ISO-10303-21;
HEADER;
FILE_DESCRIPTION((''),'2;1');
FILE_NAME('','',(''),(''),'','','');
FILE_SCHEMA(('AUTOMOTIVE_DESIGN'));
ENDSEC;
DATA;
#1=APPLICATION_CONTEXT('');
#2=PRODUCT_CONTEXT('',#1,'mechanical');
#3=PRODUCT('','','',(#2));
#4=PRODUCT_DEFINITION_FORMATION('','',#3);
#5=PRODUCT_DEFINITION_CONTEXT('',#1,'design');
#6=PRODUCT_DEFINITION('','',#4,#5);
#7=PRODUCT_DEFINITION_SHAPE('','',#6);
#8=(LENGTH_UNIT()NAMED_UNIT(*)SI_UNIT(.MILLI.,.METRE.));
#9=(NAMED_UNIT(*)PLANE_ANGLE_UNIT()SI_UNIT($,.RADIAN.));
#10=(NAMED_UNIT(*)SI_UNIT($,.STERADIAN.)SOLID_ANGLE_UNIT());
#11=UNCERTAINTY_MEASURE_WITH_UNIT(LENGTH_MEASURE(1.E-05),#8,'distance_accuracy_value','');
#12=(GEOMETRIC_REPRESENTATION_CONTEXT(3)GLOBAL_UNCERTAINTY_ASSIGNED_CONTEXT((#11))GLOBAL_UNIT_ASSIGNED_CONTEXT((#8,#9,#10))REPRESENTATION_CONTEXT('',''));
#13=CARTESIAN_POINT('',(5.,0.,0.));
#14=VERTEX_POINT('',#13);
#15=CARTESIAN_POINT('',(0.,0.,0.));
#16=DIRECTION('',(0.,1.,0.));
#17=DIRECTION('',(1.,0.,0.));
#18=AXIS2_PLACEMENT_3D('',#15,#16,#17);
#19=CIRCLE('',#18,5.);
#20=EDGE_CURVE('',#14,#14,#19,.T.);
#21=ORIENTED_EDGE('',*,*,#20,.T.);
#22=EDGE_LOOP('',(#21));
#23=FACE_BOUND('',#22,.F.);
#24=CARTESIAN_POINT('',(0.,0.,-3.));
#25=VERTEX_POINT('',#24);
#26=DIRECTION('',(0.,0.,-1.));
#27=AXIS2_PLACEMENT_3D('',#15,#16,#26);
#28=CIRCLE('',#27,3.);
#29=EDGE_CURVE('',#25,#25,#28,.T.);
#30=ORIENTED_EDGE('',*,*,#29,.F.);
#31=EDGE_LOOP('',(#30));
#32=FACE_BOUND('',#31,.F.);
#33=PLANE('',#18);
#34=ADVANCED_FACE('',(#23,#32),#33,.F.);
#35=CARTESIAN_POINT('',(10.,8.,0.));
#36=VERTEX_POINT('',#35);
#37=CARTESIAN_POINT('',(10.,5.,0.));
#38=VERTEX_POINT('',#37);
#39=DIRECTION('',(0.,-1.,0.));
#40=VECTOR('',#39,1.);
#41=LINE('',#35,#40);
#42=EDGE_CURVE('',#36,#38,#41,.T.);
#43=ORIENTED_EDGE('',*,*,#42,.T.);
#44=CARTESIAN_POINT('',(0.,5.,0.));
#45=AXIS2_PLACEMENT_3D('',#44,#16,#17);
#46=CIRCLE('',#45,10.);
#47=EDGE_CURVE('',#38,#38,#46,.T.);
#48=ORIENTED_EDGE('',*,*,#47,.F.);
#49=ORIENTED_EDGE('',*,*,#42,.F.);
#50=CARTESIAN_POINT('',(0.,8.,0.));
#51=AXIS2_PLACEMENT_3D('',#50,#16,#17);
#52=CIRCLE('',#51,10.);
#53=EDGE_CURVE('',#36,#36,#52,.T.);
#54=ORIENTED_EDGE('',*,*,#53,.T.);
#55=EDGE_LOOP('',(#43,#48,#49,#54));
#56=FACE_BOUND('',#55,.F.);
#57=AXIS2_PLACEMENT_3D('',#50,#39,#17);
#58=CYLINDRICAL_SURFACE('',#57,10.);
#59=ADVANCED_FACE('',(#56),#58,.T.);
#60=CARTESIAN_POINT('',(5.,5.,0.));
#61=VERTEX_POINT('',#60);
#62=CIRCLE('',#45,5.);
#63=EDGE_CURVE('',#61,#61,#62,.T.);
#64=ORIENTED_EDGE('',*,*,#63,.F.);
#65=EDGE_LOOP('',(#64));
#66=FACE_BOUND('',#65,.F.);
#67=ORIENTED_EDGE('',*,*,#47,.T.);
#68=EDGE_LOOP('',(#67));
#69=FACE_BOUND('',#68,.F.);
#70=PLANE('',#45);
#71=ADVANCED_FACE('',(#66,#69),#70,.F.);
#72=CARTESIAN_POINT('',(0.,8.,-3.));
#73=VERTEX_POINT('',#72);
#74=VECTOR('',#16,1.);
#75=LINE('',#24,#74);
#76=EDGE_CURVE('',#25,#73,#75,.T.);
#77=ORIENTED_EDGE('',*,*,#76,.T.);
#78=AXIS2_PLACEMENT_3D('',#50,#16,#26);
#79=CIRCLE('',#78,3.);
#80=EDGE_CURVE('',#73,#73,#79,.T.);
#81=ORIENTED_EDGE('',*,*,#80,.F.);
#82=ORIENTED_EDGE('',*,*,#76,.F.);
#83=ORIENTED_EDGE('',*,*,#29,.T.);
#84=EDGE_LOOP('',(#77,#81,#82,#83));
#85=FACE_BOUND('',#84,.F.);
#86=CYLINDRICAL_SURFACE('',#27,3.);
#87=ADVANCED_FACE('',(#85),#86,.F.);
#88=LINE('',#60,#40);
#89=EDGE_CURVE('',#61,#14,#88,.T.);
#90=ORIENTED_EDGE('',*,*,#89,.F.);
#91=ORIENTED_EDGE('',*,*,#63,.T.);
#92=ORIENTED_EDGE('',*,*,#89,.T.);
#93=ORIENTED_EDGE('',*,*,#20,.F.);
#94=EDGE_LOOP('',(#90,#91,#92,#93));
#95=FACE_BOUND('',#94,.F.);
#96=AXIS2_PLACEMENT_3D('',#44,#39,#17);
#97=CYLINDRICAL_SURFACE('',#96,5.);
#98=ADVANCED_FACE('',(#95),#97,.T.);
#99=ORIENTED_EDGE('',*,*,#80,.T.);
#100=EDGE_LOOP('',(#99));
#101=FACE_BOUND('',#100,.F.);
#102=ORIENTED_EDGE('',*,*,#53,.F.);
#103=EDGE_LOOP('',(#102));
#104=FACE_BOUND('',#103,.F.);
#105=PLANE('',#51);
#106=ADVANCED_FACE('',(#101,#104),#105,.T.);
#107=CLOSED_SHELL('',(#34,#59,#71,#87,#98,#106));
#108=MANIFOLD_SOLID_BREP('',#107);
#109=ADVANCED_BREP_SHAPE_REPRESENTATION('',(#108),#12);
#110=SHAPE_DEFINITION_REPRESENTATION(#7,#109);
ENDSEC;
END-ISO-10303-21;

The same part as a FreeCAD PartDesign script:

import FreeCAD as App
import Part
import Sketcher
Q = App.Units.Quantity


def add_polygon(sketch, points):
    """Adds a closed chain of lines whose ends are joined by coincident constraints."""
    first, n = sketch.GeometryCount, len(points)
    for a, b in zip(points, points[1:] + points[:1]):
        sketch.addGeometry(Part.LineSegment(App.Vector(*a, 0), App.Vector(*b, 0)), False)
    for i in range(n):
        sketch.addConstraint(Sketcher.Constraint("Coincident", first + i, 2, first + (i + 1) % n, 1))

doc = App.newDocument("Part")
body = doc.addObject("PartDesign::Body", "Body")

# Sketch on XY plane
sketch1 = doc.addObject("Sketcher::SketchObject", "Sketch")
body.addObject(sketch1)
sketch1.AttachmentSupport = (doc.XY_Plane, [""])
sketch1.MapMode = "FlatFace"
add_polygon(sketch1, [(0, 8), (0, 0), (5, 0), (5, 5), (10, 5), (10, 8)])  # lines 0-5
sketch1.addConstraint([
    Sketcher.Constraint("Vertical", 0),
    Sketcher.Constraint("Horizontal", 1),
    Sketcher.Constraint("Vertical", 2),
    Sketcher.Constraint("Horizontal", 3),
    Sketcher.Constraint("Vertical", 4),
    Sketcher.Constraint("Horizontal", 5),
    Sketcher.Constraint("Coincident", 0, 2, -1, 1),
    Sketcher.Constraint("Equal", 1, 3),
    Sketcher.Constraint("Equal", 3, 2),
    Sketcher.Constraint("DistanceX", 1, 1, 1, 2, Q("5 mm")),
    Sketcher.Constraint("DistanceY", 4, 1, 4, 2, Q("3 mm")),
])
revolution = doc.addObject("PartDesign::Revolution", "Revolution")
body.addObject(revolution)
revolution.Profile = sketch1
revolution.ReferenceAxis = (sketch1, ["V_Axis"])
revolution.Angle = 360

# Sketch on XZ plane
sketch2 = doc.addObject("Sketcher::SketchObject", "Sketch001")
body.addObject(sketch2)
sketch2.AttachmentSupport = (doc.XZ_Plane, [""])
sketch2.MapMode = "FlatFace"
sketch2.addGeometry(Part.Circle(App.Vector(0, 0, 0), App.Vector(0, 0, 1), 3), False)
sketch2.addConstraint([
    Sketcher.Constraint("Coincident", 0, 3, -1, 1),
    Sketcher.Constraint("Diameter", 0, Q("6 mm")),
])
doc.recompute()
hole = doc.addObject("PartDesign::Hole", "Hole")
body.addObject(hole)
hole.Profile = sketch2
hole.ThreadType = "None"
hole.Diameter = 6
hole.DepthType = "Dimension"
hole.Depth = 8
hole.DrillPoint = "Flat"

doc.recompute()
